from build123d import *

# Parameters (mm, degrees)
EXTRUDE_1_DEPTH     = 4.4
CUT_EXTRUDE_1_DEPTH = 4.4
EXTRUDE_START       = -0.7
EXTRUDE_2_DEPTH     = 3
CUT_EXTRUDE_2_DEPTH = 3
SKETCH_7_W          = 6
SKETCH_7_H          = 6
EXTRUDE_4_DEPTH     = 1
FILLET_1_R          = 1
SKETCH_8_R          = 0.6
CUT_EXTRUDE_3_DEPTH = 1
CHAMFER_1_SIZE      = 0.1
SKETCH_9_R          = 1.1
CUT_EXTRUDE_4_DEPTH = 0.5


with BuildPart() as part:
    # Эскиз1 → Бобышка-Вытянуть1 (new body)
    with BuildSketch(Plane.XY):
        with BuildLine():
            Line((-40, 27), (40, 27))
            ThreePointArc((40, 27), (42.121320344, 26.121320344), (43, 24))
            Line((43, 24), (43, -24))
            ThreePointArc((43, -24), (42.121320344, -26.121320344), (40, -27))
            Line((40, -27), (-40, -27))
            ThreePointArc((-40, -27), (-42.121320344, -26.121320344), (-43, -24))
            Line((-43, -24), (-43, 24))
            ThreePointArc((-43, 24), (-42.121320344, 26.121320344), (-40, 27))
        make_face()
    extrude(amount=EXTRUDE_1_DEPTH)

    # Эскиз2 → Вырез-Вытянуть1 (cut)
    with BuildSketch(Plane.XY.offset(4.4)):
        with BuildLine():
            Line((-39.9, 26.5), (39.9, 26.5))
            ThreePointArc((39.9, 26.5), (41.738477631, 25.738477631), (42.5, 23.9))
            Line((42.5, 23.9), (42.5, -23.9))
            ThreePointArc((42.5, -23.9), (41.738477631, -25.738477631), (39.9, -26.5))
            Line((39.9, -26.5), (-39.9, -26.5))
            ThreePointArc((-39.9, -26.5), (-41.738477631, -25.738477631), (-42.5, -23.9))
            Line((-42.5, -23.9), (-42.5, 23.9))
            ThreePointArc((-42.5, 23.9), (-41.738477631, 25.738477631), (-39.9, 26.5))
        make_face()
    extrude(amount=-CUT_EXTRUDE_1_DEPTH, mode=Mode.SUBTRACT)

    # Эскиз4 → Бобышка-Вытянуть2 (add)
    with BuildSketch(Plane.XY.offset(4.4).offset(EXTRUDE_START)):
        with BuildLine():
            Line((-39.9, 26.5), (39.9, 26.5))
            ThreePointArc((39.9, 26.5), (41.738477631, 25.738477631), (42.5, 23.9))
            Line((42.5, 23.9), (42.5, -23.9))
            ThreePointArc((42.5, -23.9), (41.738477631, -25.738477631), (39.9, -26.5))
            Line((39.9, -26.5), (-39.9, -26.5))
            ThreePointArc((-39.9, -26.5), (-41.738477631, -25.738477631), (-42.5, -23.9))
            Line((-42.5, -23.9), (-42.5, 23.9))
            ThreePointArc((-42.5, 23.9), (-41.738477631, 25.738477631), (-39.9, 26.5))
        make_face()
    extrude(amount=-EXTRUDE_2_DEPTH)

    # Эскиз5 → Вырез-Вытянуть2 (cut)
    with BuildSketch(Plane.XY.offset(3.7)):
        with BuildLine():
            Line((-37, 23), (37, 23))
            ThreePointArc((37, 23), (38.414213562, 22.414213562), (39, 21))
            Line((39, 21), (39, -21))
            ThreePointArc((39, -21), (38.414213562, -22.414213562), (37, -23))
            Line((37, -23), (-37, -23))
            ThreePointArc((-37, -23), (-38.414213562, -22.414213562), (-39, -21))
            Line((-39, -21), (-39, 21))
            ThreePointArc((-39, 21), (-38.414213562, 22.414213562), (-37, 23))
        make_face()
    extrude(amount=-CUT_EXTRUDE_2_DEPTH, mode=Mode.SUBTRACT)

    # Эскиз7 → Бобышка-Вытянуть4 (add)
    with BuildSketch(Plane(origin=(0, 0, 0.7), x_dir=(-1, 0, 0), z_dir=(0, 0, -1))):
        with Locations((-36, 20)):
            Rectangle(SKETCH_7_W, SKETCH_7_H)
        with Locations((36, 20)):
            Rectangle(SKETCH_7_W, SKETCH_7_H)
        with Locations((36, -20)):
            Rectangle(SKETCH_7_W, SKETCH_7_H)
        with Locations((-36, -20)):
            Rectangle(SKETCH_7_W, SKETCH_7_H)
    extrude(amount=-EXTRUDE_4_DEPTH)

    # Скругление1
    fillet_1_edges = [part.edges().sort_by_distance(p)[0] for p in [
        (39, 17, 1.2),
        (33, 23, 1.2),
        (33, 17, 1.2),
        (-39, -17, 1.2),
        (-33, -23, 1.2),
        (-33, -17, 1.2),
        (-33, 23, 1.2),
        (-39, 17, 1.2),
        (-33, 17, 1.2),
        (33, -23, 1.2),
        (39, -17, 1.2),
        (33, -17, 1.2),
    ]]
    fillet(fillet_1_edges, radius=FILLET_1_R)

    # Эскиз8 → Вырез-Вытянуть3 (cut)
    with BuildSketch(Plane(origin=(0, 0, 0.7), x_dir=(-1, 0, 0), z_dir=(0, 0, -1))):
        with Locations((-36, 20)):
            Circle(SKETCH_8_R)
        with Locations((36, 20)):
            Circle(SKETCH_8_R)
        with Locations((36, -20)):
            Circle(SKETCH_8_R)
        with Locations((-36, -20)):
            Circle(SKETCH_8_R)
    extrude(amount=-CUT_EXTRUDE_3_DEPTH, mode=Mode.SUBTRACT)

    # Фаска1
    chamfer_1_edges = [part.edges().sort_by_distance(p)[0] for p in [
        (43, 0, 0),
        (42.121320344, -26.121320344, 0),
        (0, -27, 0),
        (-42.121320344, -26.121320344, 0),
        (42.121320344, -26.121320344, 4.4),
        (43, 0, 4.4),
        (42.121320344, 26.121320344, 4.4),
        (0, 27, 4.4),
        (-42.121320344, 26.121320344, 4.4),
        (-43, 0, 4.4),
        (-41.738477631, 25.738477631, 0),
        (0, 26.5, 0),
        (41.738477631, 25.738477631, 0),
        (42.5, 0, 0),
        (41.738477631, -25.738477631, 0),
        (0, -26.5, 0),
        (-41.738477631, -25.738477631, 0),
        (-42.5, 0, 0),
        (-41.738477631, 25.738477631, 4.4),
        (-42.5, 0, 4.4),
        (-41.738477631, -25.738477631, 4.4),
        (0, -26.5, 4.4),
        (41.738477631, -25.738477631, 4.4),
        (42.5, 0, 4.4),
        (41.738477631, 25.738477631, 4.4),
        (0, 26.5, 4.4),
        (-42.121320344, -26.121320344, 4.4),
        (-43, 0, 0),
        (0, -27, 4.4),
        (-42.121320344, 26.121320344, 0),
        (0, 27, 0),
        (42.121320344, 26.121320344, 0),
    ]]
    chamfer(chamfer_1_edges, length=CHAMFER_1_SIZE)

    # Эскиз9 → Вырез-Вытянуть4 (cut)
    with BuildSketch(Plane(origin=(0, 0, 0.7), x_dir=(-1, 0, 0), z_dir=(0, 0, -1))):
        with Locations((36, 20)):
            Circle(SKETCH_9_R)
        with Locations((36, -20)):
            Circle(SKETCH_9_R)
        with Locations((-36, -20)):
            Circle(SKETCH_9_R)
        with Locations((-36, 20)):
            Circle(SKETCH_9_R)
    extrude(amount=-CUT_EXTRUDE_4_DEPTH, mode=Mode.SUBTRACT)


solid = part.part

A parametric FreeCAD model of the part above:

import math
import FreeCAD as App
import Part
import Sketcher
Q = App.Units.Quantity


def edges_at(feature, points):
    """Names of the edges that pass closest to the given points."""
    edges = feature.Shape.Edges
    near = lambda p: min(range(len(edges)), key=lambda i: edges[i].distToShape(Part.Vertex(*p))[0])
    return sorted({f"Edge{near(p) + 1}" for p in points})

doc = App.newDocument("Part")
params = doc.addObject("Spreadsheet::Sheet", "Params")
for row, (alias, value) in enumerate([
    ("sketch1_radius", "3 mm"),
    ("sketch1_width", "80 mm"),
    ("sketch1_height", "48 mm"),
    ("pad1_length", "4.4 mm"),
    ("sketch2_radius", "2.6 mm"),
    ("sketch2_width", "79.8 mm"),
    ("sketch2_height", "47.8 mm"),
    ("pocket1_length", "4.4 mm"),
    ("sketch3_radius", "2.6 mm"),
    ("sketch3_width", "79.8 mm"),
    ("sketch3_height", "47.8 mm"),
    ("pad2_length", "3 mm"),
    ("sketch4_radius", "2 mm"),
    ("sketch4_width", "74 mm"),
    ("sketch4_height", "42 mm"),
    ("pocket2_length", "3 mm"),
    ("sketch5_width", "6 mm"),
    ("pad3_length", "1 mm"),
    ("fillet_radius", "1 mm"),
    ("sketch6_diameter", "1.2 mm"),
    ("pocket3_length", "1 mm"),
    ("chamfer_size", "0.1 mm"),
    ("sketch7_diameter", "2.2 mm"),
    ("pocket4_length", "0.5 mm"),
], start=1):
    params.set(f"A{row}", alias)
    params.set(f"B{row}", "=" + value)
    params.setAlias(f"B{row}", alias)

body = doc.addObject("PartDesign::Body", "Body")

# Sketch on XY plane
sketch1 = body.newObject("Sketcher::SketchObject", "Sketch")
sketch1.AttachmentSupport = (doc.getObject("XY_Plane"), [""])
sketch1.MapMode = "FlatFace"
sketch1.addGeometry([
    Part.LineSegment(App.Vector(40, 27, 0), App.Vector(-40, 27, 0)),  # 0
    Part.ArcOfCircle(Part.Circle(App.Vector(-40, 24, 0), App.Vector(0, 0, 1), 3), math.radians(90), math.radians(180)),  # 1
    Part.LineSegment(App.Vector(-43, 24, 0), App.Vector(-43, -24, 0)),  # 2
    Part.ArcOfCircle(Part.Circle(App.Vector(-40, -24, 0), App.Vector(0, 0, 1), 3), math.radians(180), math.radians(270)),  # 3
    Part.LineSegment(App.Vector(-40, -27, 0), App.Vector(40, -27, 0)),  # 4
    Part.ArcOfCircle(Part.Circle(App.Vector(40, -24, 0), App.Vector(0, 0, 1), 3), math.radians(-90), math.radians(0)),  # 5
    Part.LineSegment(App.Vector(43, -24, 0), App.Vector(43, 24, 0)),  # 6
    Part.ArcOfCircle(Part.Circle(App.Vector(40, 24, 0), App.Vector(0, 0, 1), 3), math.radians(0), math.radians(90)),  # 7
], False)
sketch1.addConstraint([
    Sketcher.Constraint("Tangent", 0, 2, 1, 1),
    Sketcher.Constraint("Tangent", 1, 2, 2, 1),
    Sketcher.Constraint("Tangent", 2, 2, 3, 1),
    Sketcher.Constraint("Tangent", 3, 2, 4, 1),
    Sketcher.Constraint("Tangent", 4, 2, 5, 1),
    Sketcher.Constraint("Tangent", 5, 2, 6, 1),
    Sketcher.Constraint("Tangent", 6, 2, 7, 1),
    Sketcher.Constraint("Tangent", 7, 2, 0, 1),
    Sketcher.Constraint("Horizontal", 0),
    Sketcher.Constraint("Vertical", 2),
    Sketcher.Constraint("Horizontal", 4),
    Sketcher.Constraint("Vertical", 6),
    Sketcher.Constraint("Equal", 1, 3),
    Sketcher.Constraint("Equal", 3, 5),
    Sketcher.Constraint("Equal", 5, 7),
    Sketcher.Constraint("Symmetric", 1, 3, 5, 3, -1, 1),
    Sketcher.Constraint("Radius", 1, Q("3 mm")),
    Sketcher.Constraint("DistanceX", 0, 2, 0, 1, Q("80 mm")),
    Sketcher.Constraint("DistanceY", 2, 2, 2, 1, Q("48 mm")),
])
sketch1.setExpression("Constraints[16]", "Params.sketch1_radius")
sketch1.setExpression("Constraints[17]", "Params.sketch1_width")
sketch1.setExpression("Constraints[18]", "Params.sketch1_height")
pad1 = body.newObject("PartDesign::Pad", "Pad")
pad1.Profile = sketch1
pad1.setExpression("Length", "Params.pad1_length")

# Sketch on XY plane
sketch2 = body.newObject("Sketcher::SketchObject", "Sketch001")
sketch2.AttachmentSupport = (doc.getObject("XY_Plane"), [""])
sketch2.MapMode = "FlatFace"
sketch2.AttachmentOffset = App.Placement(App.Vector(0, 0, 4.4), App.Rotation())
sketch2.addGeometry([
    Part.LineSegment(App.Vector(39.9, 26.5, 0), App.Vector(-39.9, 26.5, 0)),  # 0
    Part.ArcOfCircle(Part.Circle(App.Vector(-39.9, 23.9, 0), App.Vector(0, 0, 1), 2.6), math.radians(90), math.radians(180)),  # 1
    Part.LineSegment(App.Vector(-42.5, 23.9, 0), App.Vector(-42.5, -23.9, 0)),  # 2
    Part.ArcOfCircle(Part.Circle(App.Vector(-39.9, -23.9, 0), App.Vector(0, 0, 1), 2.6), math.radians(180), math.radians(270)),  # 3
    Part.LineSegment(App.Vector(-39.9, -26.5, 0), App.Vector(39.9, -26.5, 0)),  # 4
    Part.ArcOfCircle(Part.Circle(App.Vector(39.9, -23.9, 0), App.Vector(0, 0, 1), 2.6), math.radians(-90), math.radians(0)),  # 5
    Part.LineSegment(App.Vector(42.5, -23.9, 0), App.Vector(42.5, 23.9, 0)),  # 6
    Part.ArcOfCircle(Part.Circle(App.Vector(39.9, 23.9, 0), App.Vector(0, 0, 1), 2.6), math.radians(0), math.radians(90)),  # 7
], False)
sketch2.addConstraint([
    Sketcher.Constraint("Tangent", 0, 2, 1, 1),
    Sketcher.Constraint("Tangent", 1, 2, 2, 1),
    Sketcher.Constraint("Tangent", 2, 2, 3, 1),
    Sketcher.Constraint("Tangent", 3, 2, 4, 1),
    Sketcher.Constraint("Tangent", 4, 2, 5, 1),
    Sketcher.Constraint("Tangent", 5, 2, 6, 1),
    Sketcher.Constraint("Tangent", 6, 2, 7, 1),
    Sketcher.Constraint("Tangent", 7, 2, 0, 1),
    Sketcher.Constraint("Horizontal", 0),
    Sketcher.Constraint("Vertical", 2),
    Sketcher.Constraint("Horizontal", 4),
    Sketcher.Constraint("Vertical", 6),
    Sketcher.Constraint("Equal", 1, 3),
    Sketcher.Constraint("Equal", 3, 5),
    Sketcher.Constraint("Equal", 5, 7),
    Sketcher.Constraint("Symmetric", 1, 3, 5, 3, -1, 1),
    Sketcher.Constraint("Radius", 1, Q("2.6 mm")),
    Sketcher.Constraint("DistanceX", 0, 2, 0, 1, Q("79.8 mm")),
    Sketcher.Constraint("DistanceY", 2, 2, 2, 1, Q("47.8 mm")),
])
sketch2.setExpression("Constraints[16]", "Params.sketch2_radius")
sketch2.setExpression("Constraints[17]", "Params.sketch2_width")
sketch2.setExpression("Constraints[18]", "Params.sketch2_height")
pocket1 = body.newObject("PartDesign::Pocket", "Pocket")
pocket1.Profile = sketch2
pocket1.setExpression("Length", "Params.pocket1_length")

# Sketch on XY plane
sketch3 = body.newObject("Sketcher::SketchObject", "Sketch002")
sketch3.AttachmentSupport = (doc.getObject("XY_Plane"), [""])
sketch3.MapMode = "FlatFace"
sketch3.AttachmentOffset = App.Placement(App.Vector(0, 0, 3.7), App.Rotation())
sketch3.addGeometry([
    Part.LineSegment(App.Vector(39.9, 26.5, 0), App.Vector(-39.9, 26.5, 0)),  # 0
    Part.ArcOfCircle(Part.Circle(App.Vector(-39.9, 23.9, 0), App.Vector(0, 0, 1), 2.6), math.radians(90), math.radians(180)),  # 1
    Part.LineSegment(App.Vector(-42.5, 23.9, 0), App.Vector(-42.5, -23.9, 0)),  # 2
    Part.ArcOfCircle(Part.Circle(App.Vector(-39.9, -23.9, 0), App.Vector(0, 0, 1), 2.6), math.radians(180), math.radians(270)),  # 3
    Part.LineSegment(App.Vector(-39.9, -26.5, 0), App.Vector(39.9, -26.5, 0)),  # 4
    Part.ArcOfCircle(Part.Circle(App.Vector(39.9, -23.9, 0), App.Vector(0, 0, 1), 2.6), math.radians(-90), math.radians(0)),  # 5
    Part.LineSegment(App.Vector(42.5, -23.9, 0), App.Vector(42.5, 23.9, 0)),  # 6
    Part.ArcOfCircle(Part.Circle(App.Vector(39.9, 23.9, 0), App.Vector(0, 0, 1), 2.6), math.radians(0), math.radians(90)),  # 7
], False)
sketch3.addConstraint([
    Sketcher.Constraint("Tangent", 0, 2, 1, 1),
    Sketcher.Constraint("Tangent", 1, 2, 2, 1),
    Sketcher.Constraint("Tangent", 2, 2, 3, 1),
    Sketcher.Constraint("Tangent", 3, 2, 4, 1),
    Sketcher.Constraint("Tangent", 4, 2, 5, 1),
    Sketcher.Constraint("Tangent", 5, 2, 6, 1),
    Sketcher.Constraint("Tangent", 6, 2, 7, 1),
    Sketcher.Constraint("Tangent", 7, 2, 0, 1),
    Sketcher.Constraint("Horizontal", 0),
    Sketcher.Constraint("Vertical", 2),
    Sketcher.Constraint("Horizontal", 4),
    Sketcher.Constraint("Vertical", 6),
    Sketcher.Constraint("Equal", 1, 3),
    Sketcher.Constraint("Equal", 3, 5),
    Sketcher.Constraint("Equal", 5, 7),
    Sketcher.Constraint("Symmetric", 1, 3, 5, 3, -1, 1),
    Sketcher.Constraint("Radius", 1, Q("2.6 mm")),
    Sketcher.Constraint("DistanceX", 0, 2, 0, 1, Q("79.8 mm")),
    Sketcher.Constraint("DistanceY", 2, 2, 2, 1, Q("47.8 mm")),
])
sketch3.setExpression("Constraints[16]", "Params.sketch3_radius")
sketch3.setExpression("Constraints[17]", "Params.sketch3_width")
sketch3.setExpression("Constraints[18]", "Params.sketch3_height")
pad2 = body.newObject("PartDesign::Pad", "Pad001")
pad2.Profile = sketch3
pad2.setExpression("Length", "Params.pad2_length")
pad2.Reversed = True

# Sketch on XY plane
sketch4 = body.newObject("Sketcher::SketchObject", "Sketch003")
sketch4.AttachmentSupport = (doc.getObject("XY_Plane"), [""])
sketch4.MapMode = "FlatFace"
sketch4.AttachmentOffset = App.Placement(App.Vector(0, 0, 3.7), App.Rotation())
sketch4.addGeometry([
    Part.LineSegment(App.Vector(37, 23, 0), App.Vector(-37, 23, 0)),  # 0
    Part.ArcOfCircle(Part.Circle(App.Vector(-37, 21, 0), App.Vector(0, 0, 1), 2), math.radians(90), math.radians(180)),  # 1
    Part.LineSegment(App.Vector(-39, 21, 0), App.Vector(-39, -21, 0)),  # 2
    Part.ArcOfCircle(Part.Circle(App.Vector(-37, -21, 0), App.Vector(0, 0, 1), 2), math.radians(-180), math.radians(-90)),  # 3
    Part.LineSegment(App.Vector(-37, -23, 0), App.Vector(37, -23, 0)),  # 4
    Part.ArcOfCircle(Part.Circle(App.Vector(37, -21, 0), App.Vector(0, 0, 1), 2), math.radians(-90), math.radians(0)),  # 5
    Part.LineSegment(App.Vector(39, -21, 0), App.Vector(39, 21, 0)),  # 6
    Part.ArcOfCircle(Part.Circle(App.Vector(37, 21, 0), App.Vector(0, 0, 1), 2), math.radians(0), math.radians(90)),  # 7
], False)
sketch4.addConstraint([
    Sketcher.Constraint("Tangent", 0, 2, 1, 1),
    Sketcher.Constraint("Tangent", 1, 2, 2, 1),
    Sketcher.Constraint("Tangent", 2, 2, 3, 1),
    Sketcher.Constraint("Tangent", 3, 2, 4, 1),
    Sketcher.Constraint("Tangent", 4, 2, 5, 1),
    Sketcher.Constraint("Tangent", 5, 2, 6, 1),
    Sketcher.Constraint("Tangent", 6, 2, 7, 1),
    Sketcher.Constraint("Tangent", 7, 2, 0, 1),
    Sketcher.Constraint("Horizontal", 0),
    Sketcher.Constraint("Vertical", 2),
    Sketcher.Constraint("Horizontal", 4),
    Sketcher.Constraint("Vertical", 6),
    Sketcher.Constraint("Equal", 1, 3),
    Sketcher.Constraint("Equal", 3, 5),
    Sketcher.Constraint("Equal", 5, 7),
    Sketcher.Constraint("Symmetric", 1, 3, 5, 3, -1, 1),
    Sketcher.Constraint("Radius", 1, Q("2 mm")),
    Sketcher.Constraint("DistanceX", 0, 2, 0, 1, Q("74 mm")),
    Sketcher.Constraint("DistanceY", 2, 2, 2, 1, Q("42 mm")),
])
sketch4.setExpression("Constraints[16]", "Params.sketch4_radius")
sketch4.setExpression("Constraints[17]", "Params.sketch4_width")
sketch4.setExpression("Constraints[18]", "Params.sketch4_height")
pocket2 = body.newObject("PartDesign::Pocket", "Pocket001")
pocket2.Profile = sketch4
pocket2.setExpression("Length", "Params.pocket2_length")

# Sketch on XY plane
sketch5 = body.newObject("Sketcher::SketchObject", "Sketch004")
sketch5.AttachmentSupport = (doc.getObject("XY_Plane"), [""])
sketch5.MapMode = "FlatFace"
sketch5.AttachmentOffset = App.Placement(App.Vector(0, 0, 0.7), App.Rotation())
sketch5.addGeometry([
    Part.LineSegment(App.Vector(39, 23, 0), App.Vector(39, 17, 0)),  # 0
    Part.LineSegment(App.Vector(39, 17, 0), App.Vector(33, 17, 0)),  # 1
    Part.LineSegment(App.Vector(33, 17, 0), App.Vector(33, 23, 0)),  # 2
    Part.LineSegment(App.Vector(33, 23, 0), App.Vector(39, 23, 0)),  # 3
    Part.LineSegment(App.Vector(-33, 23, 0), App.Vector(-33, 17, 0)),  # 4
    Part.LineSegment(App.Vector(-33, 17, 0), App.Vector(-39, 17, 0)),  # 5
    Part.LineSegment(App.Vector(-39, 17, 0), App.Vector(-39, 23, 0)),  # 6
    Part.LineSegment(App.Vector(-39, 23, 0), App.Vector(-33, 23, 0)),  # 7
    Part.LineSegment(App.Vector(-33, -17, 0), App.Vector(-33, -23, 0)),  # 8
    Part.LineSegment(App.Vector(-33, -23, 0), App.Vector(-39, -23, 0)),  # 9
    Part.LineSegment(App.Vector(-39, -23, 0), App.Vector(-39, -17, 0)),  # 10
    Part.LineSegment(App.Vector(-39, -17, 0), App.Vector(-33, -17, 0)),  # 11
    Part.LineSegment(App.Vector(39, -17, 0), App.Vector(39, -23, 0)),  # 12
    Part.LineSegment(App.Vector(39, -23, 0), App.Vector(33, -23, 0)),  # 13
    Part.LineSegment(App.Vector(33, -23, 0), App.Vector(33, -17, 0)),  # 14
    Part.LineSegment(App.Vector(33, -17, 0), App.Vector(39, -17, 0)),  # 15
], False)
sketch5.addConstraint([
    Sketcher.Constraint("Coincident", 0, 2, 1, 1),
    Sketcher.Constraint("Coincident", 1, 2, 2, 1),
    Sketcher.Constraint("Coincident", 2, 2, 3, 1),
    Sketcher.Constraint("Coincident", 3, 2, 0, 1),
    Sketcher.Constraint("Coincident", 4, 2, 5, 1),
    Sketcher.Constraint("Coincident", 5, 2, 6, 1),
    Sketcher.Constraint("Coincident", 6, 2, 7, 1),
    Sketcher.Constraint("Coincident", 7, 2, 4, 1),
    Sketcher.Constraint("Coincident", 8, 2, 9, 1),
    Sketcher.Constraint("Coincident", 9, 2, 10, 1),
    Sketcher.Constraint("Coincident", 10, 2, 11, 1),
    Sketcher.Constraint("Coincident", 11, 2, 8, 1),
    Sketcher.Constraint("Coincident", 12, 2, 13, 1),
    Sketcher.Constraint("Coincident", 13, 2, 14, 1),
    Sketcher.Constraint("Coincident", 14, 2, 15, 1),
    Sketcher.Constraint("Coincident", 15, 2, 12, 1),
    Sketcher.Constraint("Vertical", 0),
    Sketcher.Constraint("Horizontal", 1),
    Sketcher.Constraint("Vertical", 2),
    Sketcher.Constraint("Horizontal", 3),
    Sketcher.Constraint("Vertical", 4),
    Sketcher.Constraint("Horizontal", 5),
    Sketcher.Constraint("Vertical", 6),
    Sketcher.Constraint("Horizontal", 7),
    Sketcher.Constraint("Vertical", 8),
    Sketcher.Constraint("Horizontal", 9),
    Sketcher.Constraint("Vertical", 10),
    Sketcher.Constraint("Horizontal", 11),
    Sketcher.Constraint("Vertical", 12),
    Sketcher.Constraint("Horizontal", 13),
    Sketcher.Constraint("Vertical", 14),
    Sketcher.Constraint("Horizontal", 15),
    Sketcher.Constraint("Symmetric", 2, 2, 8, 2, -1, 1),
    Sketcher.Constraint("Symmetric", 0, 2, 10, 2, -1, 1),
    Sketcher.Constraint("Symmetric", 6, 2, 12, 2, -1, 1),
    Sketcher.Constraint("Symmetric", 4, 2, 14, 2, -1, 1),
    Sketcher.Constraint("Symmetric", 1, 2, 4, 2, -2),
    Sketcher.Constraint("Symmetric", 3, 2, 6, 2, -2),
    Sketcher.Constraint("Equal", 15, 0),
    Sketcher.Constraint("DistanceX", 1, 2, 1, 1, Q("6 mm")),
    Sketcher.Constraint("DistanceX", -1, 1, 0, 2, Q("39 mm")),
    Sketcher.Constraint("DistanceY", -1, 1, 0, 2, Q("17 mm")),
])
sketch5.setExpression("Constraints[39]", "Params.sketch5_width")
pad3 = body.newObject("PartDesign::Pad", "Pad002")
pad3.Profile = sketch5
pad3.setExpression("Length", "Params.pad3_length")
doc.recompute()

fillet = body.newObject("PartDesign::Fillet", "Fillet")
fillet.Base = (pad3, edges_at(pad3, [
    (39, 17, 1.2),
    (33, 23, 1.2),
    (33, 17, 1.2),
    (-39, -17, 1.2),
    (-33, -23, 1.2),
    (-33, -17, 1.2),
    (-33, 23, 1.2),
    (-39, 17, 1.2),
    (-33, 17, 1.2),
    (33, -23, 1.2),
    (39, -17, 1.2),
    (33, -17, 1.2),
]))
fillet.setExpression("Radius", "Params.fillet_radius")

# Sketch on XY plane
sketch6 = body.newObject("Sketcher::SketchObject", "Sketch005")
sketch6.AttachmentSupport = (doc.getObject("XY_Plane"), [""])
sketch6.MapMode = "FlatFace"
sketch6.AttachmentOffset = App.Placement(App.Vector(0, 0, 0.7), App.Rotation())
sketch6.addGeometry([
    Part.Circle(App.Vector(36, 20, 0), App.Vector(0, 0, 1), 0.6),
    Part.Circle(App.Vector(-36, 20, 0), App.Vector(0, 0, 1), 0.6),
    Part.Circle(App.Vector(-36, -20, 0), App.Vector(0, 0, 1), 0.6),
    Part.Circle(App.Vector(36, -20, 0), App.Vector(0, 0, 1), 0.6),
], False)
sketch6.addConstraint([
    Sketcher.Constraint("Equal", 0, 1),
    Sketcher.Constraint("Equal", 1, 2),
    Sketcher.Constraint("Equal", 2, 3),
    Sketcher.Constraint("Symmetric", 0, 3, 2, 3, -1, 1),
    Sketcher.Constraint("Symmetric", 1, 3, 3, 3, -1, 1),
    Sketcher.Constraint("Symmetric", 0, 3, 1, 3, -2),
    Sketcher.Constraint("Diameter", 0, Q("1.2 mm")),
    Sketcher.Constraint("DistanceX", -1, 1, 0, 3, Q("36 mm")),
    Sketcher.Constraint("DistanceY", -1, 1, 0, 3, Q("20 mm")),
])
sketch6.setExpression("Constraints[6]", "Params.sketch6_diameter")
pocket3 = body.newObject("PartDesign::Pocket", "Pocket002")
pocket3.Profile = sketch6
pocket3.setExpression("Length", "Params.pocket3_length")
pocket3.Reversed = True
doc.recompute()

chamfer = body.newObject("PartDesign::Chamfer", "Chamfer")
chamfer.Base = (pocket3, edges_at(pocket3, [
    (43, 0, 0),
    (42.121, -26.121, 0),
    (0, -27, 0),
    (-42.121, -26.121, 0),
    (42.121, -26.121, 4.4),
    (43, 0, 4.4),
    (42.121, 26.121, 4.4),
    (0, 27, 4.4),
    (-42.121, 26.121, 4.4),
    (-43, 0, 4.4),
    (-41.738, 25.738, 0),
    (0, 26.5, 0),
    (41.738, 25.738, 0),
    (42.5, 0, 0),
    (41.738, -25.738, 0),
    (0, -26.5, 0),
    (-41.738, -25.738, 0),
    (-42.5, 0, 0),
    (-41.738, 25.738, 4.4),
    (-42.5, 0, 4.4),
    (-41.738, -25.738, 4.4),
    (0, -26.5, 4.4),
    (41.738, -25.738, 4.4),
    (42.5, 0, 4.4),
    (41.738, 25.738, 4.4),
    (0, 26.5, 4.4),
    (-42.121, -26.121, 4.4),
    (-43, 0, 0),
    (0, -27, 4.4),
    (-42.121, 26.121, 0),
    (0, 27, 0),
    (42.121, 26.121, 0),
]))
chamfer.setExpression("Size", "Params.chamfer_size")

# Sketch on XY plane
sketch7 = body.newObject("Sketcher::SketchObject", "Sketch006")
sketch7.AttachmentSupport = (doc.getObject("XY_Plane"), [""])
sketch7.MapMode = "FlatFace"
sketch7.AttachmentOffset = App.Placement(App.Vector(0, 0, 0.7), App.Rotation())
sketch7.addGeometry([
    Part.Circle(App.Vector(-36, 20, 0), App.Vector(0, 0, 1), 1.1),
    Part.Circle(App.Vector(-36, -20, 0), App.Vector(0, 0, 1), 1.1),
    Part.Circle(App.Vector(36, -20, 0), App.Vector(0, 0, 1), 1.1),
    Part.Circle(App.Vector(36, 20, 0), App.Vector(0, 0, 1), 1.1),
], False)
sketch7.addConstraint([
    Sketcher.Constraint("Equal", 0, 1),
    Sketcher.Constraint("Equal", 1, 2),
    Sketcher.Constraint("Equal", 2, 3),
    Sketcher.Constraint("Symmetric", 0, 3, 2, 3, -1, 1),
    Sketcher.Constraint("Symmetric", 1, 3, 3, 3, -1, 1),
    Sketcher.Constraint("Symmetric", 1, 3, 2, 3, -2),
    Sketcher.Constraint("Diameter", 0, Q("2.2 mm")),
    Sketcher.Constraint("DistanceX", 0, 3, -1, 1, Q("36 mm")),
    Sketcher.Constraint("DistanceY", -1, 1, 0, 3, Q("20 mm")),
])
sketch7.setExpression("Constraints[6]", "Params.sketch7_diameter")
pocket4 = body.newObject("PartDesign::Pocket", "Pocket003")
pocket4.Profile = sketch7
pocket4.setExpression("Length", "Params.pocket4_length")
pocket4.Reversed = True

doc.recompute()
